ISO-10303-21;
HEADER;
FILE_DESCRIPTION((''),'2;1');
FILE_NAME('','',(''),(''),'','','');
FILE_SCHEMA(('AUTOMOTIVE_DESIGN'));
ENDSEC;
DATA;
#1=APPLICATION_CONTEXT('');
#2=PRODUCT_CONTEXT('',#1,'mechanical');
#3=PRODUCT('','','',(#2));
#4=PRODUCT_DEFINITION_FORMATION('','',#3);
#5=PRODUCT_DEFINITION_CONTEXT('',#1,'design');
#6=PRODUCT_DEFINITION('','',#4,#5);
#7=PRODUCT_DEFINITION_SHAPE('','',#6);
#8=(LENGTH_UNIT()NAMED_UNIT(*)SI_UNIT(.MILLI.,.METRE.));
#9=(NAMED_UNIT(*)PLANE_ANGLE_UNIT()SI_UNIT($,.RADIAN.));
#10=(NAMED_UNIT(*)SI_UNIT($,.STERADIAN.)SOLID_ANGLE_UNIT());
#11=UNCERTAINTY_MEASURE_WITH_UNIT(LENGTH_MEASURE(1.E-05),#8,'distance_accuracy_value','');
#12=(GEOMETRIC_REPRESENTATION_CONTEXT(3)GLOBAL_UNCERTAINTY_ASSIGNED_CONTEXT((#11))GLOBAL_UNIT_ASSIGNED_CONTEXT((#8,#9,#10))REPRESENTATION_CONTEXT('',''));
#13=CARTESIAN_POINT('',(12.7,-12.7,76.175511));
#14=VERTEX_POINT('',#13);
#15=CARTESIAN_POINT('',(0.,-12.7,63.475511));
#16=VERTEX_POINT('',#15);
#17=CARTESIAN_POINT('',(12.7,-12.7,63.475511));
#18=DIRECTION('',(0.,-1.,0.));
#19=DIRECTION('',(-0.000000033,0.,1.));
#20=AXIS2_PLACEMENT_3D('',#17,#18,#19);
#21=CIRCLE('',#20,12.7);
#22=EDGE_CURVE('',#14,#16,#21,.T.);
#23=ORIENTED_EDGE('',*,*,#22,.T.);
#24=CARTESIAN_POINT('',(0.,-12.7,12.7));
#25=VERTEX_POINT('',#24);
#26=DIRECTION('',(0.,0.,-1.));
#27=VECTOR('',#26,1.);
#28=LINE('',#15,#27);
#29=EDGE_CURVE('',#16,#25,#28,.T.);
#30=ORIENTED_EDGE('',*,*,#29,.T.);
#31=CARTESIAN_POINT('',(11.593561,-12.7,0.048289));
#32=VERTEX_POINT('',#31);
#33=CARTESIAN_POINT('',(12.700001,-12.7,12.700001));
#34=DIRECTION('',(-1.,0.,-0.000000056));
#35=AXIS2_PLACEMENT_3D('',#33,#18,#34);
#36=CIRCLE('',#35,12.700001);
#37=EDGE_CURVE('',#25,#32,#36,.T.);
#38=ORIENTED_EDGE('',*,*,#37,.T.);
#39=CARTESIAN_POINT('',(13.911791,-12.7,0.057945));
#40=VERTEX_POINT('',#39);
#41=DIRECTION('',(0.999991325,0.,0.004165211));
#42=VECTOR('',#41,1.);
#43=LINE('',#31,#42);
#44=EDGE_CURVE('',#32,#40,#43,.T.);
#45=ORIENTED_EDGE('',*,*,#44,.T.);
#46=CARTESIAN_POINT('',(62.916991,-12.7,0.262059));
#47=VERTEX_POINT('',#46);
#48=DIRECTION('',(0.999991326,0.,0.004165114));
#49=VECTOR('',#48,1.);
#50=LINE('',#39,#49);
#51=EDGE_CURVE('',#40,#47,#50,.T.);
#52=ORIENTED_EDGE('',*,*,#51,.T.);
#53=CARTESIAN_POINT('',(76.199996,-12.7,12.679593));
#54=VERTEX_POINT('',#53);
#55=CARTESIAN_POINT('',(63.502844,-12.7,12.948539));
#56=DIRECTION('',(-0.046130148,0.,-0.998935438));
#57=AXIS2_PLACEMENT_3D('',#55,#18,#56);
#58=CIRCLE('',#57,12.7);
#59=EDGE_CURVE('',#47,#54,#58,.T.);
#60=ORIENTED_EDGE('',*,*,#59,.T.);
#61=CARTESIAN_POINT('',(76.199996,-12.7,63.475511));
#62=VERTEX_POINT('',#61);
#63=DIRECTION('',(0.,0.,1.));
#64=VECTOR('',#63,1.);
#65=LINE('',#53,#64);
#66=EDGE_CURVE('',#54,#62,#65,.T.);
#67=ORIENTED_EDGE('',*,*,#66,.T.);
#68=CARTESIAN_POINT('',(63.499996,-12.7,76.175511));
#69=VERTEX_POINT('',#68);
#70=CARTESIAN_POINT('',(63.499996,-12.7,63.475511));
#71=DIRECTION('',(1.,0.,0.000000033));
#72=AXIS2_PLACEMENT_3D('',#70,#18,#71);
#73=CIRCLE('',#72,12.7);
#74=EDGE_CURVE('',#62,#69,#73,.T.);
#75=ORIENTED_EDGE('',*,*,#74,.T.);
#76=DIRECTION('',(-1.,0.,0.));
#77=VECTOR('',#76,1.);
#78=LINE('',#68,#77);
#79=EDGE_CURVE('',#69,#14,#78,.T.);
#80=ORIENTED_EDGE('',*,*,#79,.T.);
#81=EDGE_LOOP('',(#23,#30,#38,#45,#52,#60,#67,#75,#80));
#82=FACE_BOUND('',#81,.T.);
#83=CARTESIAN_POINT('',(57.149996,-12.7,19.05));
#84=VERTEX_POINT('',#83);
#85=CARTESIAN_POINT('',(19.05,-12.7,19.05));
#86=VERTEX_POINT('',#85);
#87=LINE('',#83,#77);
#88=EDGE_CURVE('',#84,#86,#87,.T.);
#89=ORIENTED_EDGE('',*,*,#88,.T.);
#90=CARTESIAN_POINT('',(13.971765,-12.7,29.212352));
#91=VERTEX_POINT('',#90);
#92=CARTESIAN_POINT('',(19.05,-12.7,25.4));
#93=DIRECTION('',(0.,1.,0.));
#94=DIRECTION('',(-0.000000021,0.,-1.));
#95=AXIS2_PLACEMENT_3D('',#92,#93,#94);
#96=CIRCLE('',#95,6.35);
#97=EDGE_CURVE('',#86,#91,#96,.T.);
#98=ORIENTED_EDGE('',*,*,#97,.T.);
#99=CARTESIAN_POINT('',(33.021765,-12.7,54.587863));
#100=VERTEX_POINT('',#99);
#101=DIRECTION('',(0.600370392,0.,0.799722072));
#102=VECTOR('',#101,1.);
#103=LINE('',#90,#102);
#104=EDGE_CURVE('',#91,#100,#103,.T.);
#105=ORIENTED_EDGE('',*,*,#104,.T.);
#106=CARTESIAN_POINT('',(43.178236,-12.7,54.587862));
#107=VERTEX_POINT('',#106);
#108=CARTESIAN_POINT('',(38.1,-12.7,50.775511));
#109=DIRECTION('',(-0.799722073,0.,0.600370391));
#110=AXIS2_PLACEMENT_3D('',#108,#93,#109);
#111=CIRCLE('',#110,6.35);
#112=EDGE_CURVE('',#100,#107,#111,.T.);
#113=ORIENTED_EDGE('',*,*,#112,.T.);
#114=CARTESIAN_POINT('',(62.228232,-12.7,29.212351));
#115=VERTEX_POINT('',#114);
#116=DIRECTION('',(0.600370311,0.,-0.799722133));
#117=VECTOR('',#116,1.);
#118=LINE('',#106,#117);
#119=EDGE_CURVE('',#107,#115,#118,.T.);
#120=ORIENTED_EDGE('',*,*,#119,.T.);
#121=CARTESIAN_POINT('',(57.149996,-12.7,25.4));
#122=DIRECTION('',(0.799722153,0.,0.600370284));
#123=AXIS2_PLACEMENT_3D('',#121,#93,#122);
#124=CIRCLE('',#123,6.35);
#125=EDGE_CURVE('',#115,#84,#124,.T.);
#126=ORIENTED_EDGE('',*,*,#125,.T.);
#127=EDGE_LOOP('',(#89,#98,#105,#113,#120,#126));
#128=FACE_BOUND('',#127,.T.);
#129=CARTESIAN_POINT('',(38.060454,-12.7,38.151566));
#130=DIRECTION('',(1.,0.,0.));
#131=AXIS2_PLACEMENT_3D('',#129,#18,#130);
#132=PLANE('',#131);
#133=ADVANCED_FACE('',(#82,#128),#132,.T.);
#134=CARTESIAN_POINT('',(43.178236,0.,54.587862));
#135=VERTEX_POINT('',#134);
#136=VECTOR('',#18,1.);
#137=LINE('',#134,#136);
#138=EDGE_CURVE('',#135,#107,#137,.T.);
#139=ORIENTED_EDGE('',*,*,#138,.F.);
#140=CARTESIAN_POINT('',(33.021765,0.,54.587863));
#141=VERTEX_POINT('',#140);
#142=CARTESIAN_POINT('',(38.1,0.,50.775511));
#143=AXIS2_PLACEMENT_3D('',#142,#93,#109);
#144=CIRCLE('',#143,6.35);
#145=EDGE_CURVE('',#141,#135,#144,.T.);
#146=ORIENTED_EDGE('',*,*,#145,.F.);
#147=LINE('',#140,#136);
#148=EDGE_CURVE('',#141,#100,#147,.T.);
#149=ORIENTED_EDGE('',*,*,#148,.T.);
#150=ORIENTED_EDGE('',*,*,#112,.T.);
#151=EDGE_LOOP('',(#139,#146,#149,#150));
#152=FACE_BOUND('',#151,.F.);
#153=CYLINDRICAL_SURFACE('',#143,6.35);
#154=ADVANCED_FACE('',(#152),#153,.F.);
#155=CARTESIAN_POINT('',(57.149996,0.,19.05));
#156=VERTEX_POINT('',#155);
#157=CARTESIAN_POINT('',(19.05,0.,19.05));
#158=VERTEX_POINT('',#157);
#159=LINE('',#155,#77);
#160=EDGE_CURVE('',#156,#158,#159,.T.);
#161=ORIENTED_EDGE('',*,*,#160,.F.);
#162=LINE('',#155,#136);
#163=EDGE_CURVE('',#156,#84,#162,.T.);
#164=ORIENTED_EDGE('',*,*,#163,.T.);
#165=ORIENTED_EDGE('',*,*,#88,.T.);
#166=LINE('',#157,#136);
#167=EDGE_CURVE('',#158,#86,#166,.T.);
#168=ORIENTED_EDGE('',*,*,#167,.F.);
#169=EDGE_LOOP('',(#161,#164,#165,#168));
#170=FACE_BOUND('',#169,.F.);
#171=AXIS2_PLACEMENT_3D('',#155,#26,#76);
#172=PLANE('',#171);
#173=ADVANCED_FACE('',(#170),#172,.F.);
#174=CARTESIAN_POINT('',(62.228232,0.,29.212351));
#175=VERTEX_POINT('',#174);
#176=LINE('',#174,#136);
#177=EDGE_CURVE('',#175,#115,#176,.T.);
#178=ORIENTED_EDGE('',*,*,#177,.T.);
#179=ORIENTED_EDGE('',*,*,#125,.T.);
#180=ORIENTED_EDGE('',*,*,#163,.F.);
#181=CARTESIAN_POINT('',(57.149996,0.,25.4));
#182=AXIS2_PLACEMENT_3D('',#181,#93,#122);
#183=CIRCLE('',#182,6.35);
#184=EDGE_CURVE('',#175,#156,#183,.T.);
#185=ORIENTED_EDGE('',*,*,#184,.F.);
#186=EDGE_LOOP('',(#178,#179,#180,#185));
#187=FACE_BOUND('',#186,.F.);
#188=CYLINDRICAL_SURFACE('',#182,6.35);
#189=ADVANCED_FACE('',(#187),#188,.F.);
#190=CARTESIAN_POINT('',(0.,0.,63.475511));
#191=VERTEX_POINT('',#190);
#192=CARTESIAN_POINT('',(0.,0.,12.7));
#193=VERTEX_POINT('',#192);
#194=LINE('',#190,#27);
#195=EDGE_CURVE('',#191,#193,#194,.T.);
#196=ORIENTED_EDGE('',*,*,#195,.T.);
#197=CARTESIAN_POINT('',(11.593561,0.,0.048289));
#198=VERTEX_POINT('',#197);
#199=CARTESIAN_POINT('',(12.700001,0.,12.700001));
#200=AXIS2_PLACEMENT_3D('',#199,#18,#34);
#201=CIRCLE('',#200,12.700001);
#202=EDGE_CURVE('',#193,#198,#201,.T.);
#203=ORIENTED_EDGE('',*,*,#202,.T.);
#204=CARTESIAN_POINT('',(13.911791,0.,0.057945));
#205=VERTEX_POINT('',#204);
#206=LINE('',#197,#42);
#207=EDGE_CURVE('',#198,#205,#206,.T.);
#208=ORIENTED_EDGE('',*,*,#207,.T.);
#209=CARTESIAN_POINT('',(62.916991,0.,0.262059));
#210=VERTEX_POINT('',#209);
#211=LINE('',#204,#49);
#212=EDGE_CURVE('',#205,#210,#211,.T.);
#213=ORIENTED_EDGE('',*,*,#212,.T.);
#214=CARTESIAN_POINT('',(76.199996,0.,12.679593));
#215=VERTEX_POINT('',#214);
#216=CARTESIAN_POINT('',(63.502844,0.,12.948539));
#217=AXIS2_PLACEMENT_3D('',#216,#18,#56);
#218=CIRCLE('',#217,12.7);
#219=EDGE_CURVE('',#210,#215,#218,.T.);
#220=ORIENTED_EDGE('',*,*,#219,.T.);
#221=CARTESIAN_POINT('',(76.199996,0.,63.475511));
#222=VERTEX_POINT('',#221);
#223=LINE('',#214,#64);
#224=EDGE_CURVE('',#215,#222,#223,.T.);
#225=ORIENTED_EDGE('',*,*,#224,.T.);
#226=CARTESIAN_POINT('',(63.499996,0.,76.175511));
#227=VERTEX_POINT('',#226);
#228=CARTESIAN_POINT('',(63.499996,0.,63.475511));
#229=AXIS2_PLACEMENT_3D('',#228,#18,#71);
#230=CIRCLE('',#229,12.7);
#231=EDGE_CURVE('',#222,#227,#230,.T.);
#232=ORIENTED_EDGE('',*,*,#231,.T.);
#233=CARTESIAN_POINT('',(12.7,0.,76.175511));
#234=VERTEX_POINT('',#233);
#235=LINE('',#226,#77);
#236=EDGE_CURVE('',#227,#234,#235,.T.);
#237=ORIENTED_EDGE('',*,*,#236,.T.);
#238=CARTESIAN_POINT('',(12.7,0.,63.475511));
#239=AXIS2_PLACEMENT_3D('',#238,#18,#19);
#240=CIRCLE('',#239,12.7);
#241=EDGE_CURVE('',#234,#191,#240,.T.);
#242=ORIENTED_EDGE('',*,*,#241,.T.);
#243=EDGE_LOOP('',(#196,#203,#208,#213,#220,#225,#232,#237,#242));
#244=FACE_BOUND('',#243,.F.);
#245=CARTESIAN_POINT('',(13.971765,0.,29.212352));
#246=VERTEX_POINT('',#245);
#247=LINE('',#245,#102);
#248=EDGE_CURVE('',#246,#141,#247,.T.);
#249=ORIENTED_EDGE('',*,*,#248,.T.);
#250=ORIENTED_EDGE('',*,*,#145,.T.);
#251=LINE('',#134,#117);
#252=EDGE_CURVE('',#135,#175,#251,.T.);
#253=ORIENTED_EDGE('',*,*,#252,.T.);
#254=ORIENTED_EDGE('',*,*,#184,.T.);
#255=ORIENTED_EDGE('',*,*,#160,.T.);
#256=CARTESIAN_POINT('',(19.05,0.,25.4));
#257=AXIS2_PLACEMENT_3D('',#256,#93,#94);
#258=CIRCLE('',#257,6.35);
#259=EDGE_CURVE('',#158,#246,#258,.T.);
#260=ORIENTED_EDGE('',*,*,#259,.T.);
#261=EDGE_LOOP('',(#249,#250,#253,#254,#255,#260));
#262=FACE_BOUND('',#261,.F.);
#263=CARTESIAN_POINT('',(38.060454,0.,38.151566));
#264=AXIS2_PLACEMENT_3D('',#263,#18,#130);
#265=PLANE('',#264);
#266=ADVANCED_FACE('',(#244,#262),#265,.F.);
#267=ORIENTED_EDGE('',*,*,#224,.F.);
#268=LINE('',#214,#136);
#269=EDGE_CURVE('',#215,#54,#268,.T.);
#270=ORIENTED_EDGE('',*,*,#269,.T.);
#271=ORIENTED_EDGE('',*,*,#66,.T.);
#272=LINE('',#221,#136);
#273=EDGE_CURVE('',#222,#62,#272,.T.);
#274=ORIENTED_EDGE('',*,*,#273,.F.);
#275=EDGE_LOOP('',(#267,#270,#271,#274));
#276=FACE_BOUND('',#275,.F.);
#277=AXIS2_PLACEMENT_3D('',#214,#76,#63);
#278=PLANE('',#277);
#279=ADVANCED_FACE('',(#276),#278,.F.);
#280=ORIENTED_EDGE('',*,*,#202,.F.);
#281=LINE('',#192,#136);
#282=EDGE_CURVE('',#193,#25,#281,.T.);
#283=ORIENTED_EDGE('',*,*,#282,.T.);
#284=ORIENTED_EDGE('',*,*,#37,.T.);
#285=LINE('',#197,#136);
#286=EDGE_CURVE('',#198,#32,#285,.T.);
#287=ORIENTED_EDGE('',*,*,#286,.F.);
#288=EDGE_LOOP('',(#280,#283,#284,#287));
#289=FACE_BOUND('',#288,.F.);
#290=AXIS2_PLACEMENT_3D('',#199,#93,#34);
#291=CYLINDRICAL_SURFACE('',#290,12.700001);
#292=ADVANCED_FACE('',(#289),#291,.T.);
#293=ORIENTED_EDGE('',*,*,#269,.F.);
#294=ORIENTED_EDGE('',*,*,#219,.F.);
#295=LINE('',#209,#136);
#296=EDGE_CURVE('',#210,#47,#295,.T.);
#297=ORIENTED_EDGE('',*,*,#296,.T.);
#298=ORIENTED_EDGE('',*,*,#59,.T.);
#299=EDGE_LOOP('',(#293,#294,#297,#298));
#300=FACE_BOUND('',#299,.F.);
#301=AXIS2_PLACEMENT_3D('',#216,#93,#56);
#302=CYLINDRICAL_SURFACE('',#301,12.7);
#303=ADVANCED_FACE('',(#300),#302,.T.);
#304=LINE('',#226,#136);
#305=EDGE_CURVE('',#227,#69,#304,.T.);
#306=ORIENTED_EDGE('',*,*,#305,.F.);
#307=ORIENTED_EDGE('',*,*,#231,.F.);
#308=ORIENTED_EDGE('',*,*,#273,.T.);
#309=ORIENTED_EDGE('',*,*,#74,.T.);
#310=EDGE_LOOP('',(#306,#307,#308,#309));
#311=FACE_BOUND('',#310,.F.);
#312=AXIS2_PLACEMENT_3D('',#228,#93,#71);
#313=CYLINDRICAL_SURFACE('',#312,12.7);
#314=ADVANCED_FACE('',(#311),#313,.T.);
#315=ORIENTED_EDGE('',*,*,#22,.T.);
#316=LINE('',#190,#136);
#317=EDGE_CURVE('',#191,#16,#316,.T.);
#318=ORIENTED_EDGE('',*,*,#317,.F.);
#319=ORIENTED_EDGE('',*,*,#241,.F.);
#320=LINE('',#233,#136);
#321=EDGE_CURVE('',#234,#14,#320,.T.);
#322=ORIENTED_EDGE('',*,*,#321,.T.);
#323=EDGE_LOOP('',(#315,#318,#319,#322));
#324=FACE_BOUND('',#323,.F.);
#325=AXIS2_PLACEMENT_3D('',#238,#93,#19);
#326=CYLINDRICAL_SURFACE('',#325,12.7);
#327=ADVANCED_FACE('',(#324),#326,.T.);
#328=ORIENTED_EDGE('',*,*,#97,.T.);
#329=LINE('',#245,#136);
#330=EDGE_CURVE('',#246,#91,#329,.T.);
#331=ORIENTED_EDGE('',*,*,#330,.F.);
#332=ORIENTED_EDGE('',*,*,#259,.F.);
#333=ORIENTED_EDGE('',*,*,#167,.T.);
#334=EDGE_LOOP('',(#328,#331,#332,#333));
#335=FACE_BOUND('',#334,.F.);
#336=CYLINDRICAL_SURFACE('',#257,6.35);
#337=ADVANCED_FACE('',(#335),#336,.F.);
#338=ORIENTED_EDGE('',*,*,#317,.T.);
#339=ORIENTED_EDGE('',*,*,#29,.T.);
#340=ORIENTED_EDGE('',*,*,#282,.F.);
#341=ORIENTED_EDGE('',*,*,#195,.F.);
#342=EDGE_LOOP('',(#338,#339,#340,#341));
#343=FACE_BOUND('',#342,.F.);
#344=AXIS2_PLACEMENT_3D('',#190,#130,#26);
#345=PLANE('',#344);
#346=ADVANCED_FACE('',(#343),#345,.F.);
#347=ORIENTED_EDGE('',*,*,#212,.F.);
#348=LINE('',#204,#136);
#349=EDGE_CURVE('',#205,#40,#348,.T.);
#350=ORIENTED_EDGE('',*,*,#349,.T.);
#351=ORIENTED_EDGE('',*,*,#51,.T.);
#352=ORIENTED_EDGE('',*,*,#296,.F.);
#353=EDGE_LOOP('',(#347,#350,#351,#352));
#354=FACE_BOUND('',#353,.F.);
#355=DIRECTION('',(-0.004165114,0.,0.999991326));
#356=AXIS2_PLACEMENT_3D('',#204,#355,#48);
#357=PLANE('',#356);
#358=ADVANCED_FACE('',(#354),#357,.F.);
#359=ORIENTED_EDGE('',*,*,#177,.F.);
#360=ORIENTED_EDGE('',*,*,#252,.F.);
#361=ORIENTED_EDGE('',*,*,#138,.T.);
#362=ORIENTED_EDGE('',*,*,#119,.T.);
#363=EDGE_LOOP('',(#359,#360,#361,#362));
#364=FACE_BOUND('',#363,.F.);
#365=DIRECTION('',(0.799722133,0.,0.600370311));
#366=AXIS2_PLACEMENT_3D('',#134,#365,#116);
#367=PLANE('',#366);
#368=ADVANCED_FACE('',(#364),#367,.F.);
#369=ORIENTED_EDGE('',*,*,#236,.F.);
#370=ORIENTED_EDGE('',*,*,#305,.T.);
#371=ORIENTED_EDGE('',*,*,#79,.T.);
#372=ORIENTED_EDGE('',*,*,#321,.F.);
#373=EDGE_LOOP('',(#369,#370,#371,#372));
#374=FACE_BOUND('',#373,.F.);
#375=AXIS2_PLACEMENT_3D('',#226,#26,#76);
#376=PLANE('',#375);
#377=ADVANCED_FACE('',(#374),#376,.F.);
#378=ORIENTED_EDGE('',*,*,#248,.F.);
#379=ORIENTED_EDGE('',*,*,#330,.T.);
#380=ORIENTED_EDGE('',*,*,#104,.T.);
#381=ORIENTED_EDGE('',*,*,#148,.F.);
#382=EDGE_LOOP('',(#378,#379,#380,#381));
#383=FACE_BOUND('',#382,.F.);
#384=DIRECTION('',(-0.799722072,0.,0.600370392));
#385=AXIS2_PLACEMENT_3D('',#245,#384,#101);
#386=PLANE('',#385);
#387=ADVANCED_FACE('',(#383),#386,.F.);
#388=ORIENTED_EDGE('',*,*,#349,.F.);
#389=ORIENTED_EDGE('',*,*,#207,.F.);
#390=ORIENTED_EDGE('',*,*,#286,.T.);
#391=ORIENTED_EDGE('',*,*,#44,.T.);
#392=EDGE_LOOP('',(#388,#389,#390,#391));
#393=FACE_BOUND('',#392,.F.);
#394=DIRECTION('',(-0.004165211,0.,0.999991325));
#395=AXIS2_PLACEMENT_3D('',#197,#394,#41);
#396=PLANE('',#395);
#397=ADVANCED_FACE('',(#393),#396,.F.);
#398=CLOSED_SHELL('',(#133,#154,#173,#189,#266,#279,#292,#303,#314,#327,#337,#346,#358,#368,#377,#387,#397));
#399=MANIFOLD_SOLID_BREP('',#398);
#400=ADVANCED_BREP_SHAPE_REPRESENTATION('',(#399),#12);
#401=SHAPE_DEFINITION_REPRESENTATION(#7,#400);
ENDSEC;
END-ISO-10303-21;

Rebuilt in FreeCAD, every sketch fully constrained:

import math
import FreeCAD as App
import Part
import Sketcher
Q = App.Units.Quantity

doc = App.newDocument("Part")
params = doc.addObject("Spreadsheet::Sheet", "Params")
for row, (alias, value) in enumerate([
    ("sketch1_radius", "0.5 in"),
    ("sketch1_width", "1.9999998 in"),
    ("sketch1_radius2", "0.25 in"),
    ("sketch1_width2", "1.4999998 in"),
    ("pad1_length", "0.5 in"),
], start=1):
    params.set(f"A{row}", alias)
    params.set(f"B{row}", "=" + value)
    params.setAlias(f"B{row}", alias)

body = doc.addObject("PartDesign::Body", "Body")

# Sketch on XZ plane
sketch1 = doc.addObject("Sketcher::SketchObject", "Sketch")
body.addObject(sketch1)
sketch1.AttachmentSupport = (doc.XZ_Plane, [""])
sketch1.MapMode = "FlatFace"
sketch1.addGeometry([
    Part.ArcOfCircle(Part.Circle(App.Vector(63.5, 12.9, 0), App.Vector(0, 0, 1), 12.7), math.radians(-93), math.radians(-1)),  # 0
    Part.LineSegment(App.Vector(76.2, 12.7, 0), App.Vector(76.2, 63.5, 0)),  # 1
    Part.ArcOfCircle(Part.Circle(App.Vector(63.5, 63.5, 0), App.Vector(0, 0, 1), 12.7), math.radians(0), math.radians(90)),  # 2
    Part.LineSegment(App.Vector(63.5, 76.2, 0), App.Vector(12.7, 76.2, 0)),  # 3
    Part.ArcOfCircle(Part.Circle(App.Vector(12.7, 63.5, 0), App.Vector(0, 0, 1), 12.7), math.radians(90), math.radians(180)),  # 4
    Part.LineSegment(App.Vector(0, 63.5, 0), App.Vector(0, 12.7, 0)),  # 5
    Part.ArcOfCircle(Part.Circle(App.Vector(12.7, 12.7, 0), App.Vector(0, 0, 1), 12.7), math.radians(-180), math.radians(-95)),  # 6
    Part.LineSegment(App.Vector(11.6, 0, 0), App.Vector(13.9, 0.1, 0)),  # 7
    Part.LineSegment(App.Vector(13.9, 0.1, 0), App.Vector(62.9, 0.3, 0)),  # 8
    Part.LineSegment(App.Vector(57.1, 19.1, 0), App.Vector(19.1, 19.1, 0)),  # 9
    Part.ArcOfCircle(Part.Circle(App.Vector(19.1, 25.4, 0), App.Vector(0, 0, 1), 6.3), math.radians(143), math.radians(270)),  # 10
    Part.LineSegment(App.Vector(14, 29.2, 0), App.Vector(33, 54.6, 0)),  # 11
    Part.ArcOfCircle(Part.Circle(App.Vector(38.1, 50.8, 0), App.Vector(0, 0, 1), 6.3), math.radians(37), math.radians(143)),  # 12
    Part.LineSegment(App.Vector(43.2, 54.6, 0), App.Vector(62.2, 29.2, 0)),  # 13
    Part.ArcOfCircle(Part.Circle(App.Vector(57.1, 25.4, 0), App.Vector(0, 0, 1), 6.3), math.radians(-90), math.radians(37)),  # 14
], False)
sketch1.addConstraint([
    Sketcher.Constraint("Coincident", 0, 2, 1, 1),
    Sketcher.Constraint("Tangent", 1, 2, 2, 1),
    Sketcher.Constraint("Tangent", 2, 2, 3, 1),
    Sketcher.Constraint("Tangent", 3, 2, 4, 1),
    Sketcher.Constraint("Tangent", 4, 2, 5, 1),
    Sketcher.Constraint("Tangent", 5, 2, 6, 1),
    Sketcher.Constraint("Coincident", 6, 2, 7, 1),
    Sketcher.Constraint("Coincident", 7, 2, 8, 1),
    Sketcher.Constraint("Coincident", 8, 2, 0, 1),
    Sketcher.Constraint("Tangent", 9, 2, 10, 2),
    Sketcher.Constraint("Tangent", 10, 1, 11, 1),
    Sketcher.Constraint("Tangent", 11, 2, 12, 2),
    Sketcher.Constraint("Tangent", 12, 1, 13, 1),
    Sketcher.Constraint("Tangent", 13, 2, 14, 2),
    Sketcher.Constraint("Tangent", 14, 1, 9, 1),
    Sketcher.Constraint("Vertical", 1),
    Sketcher.Constraint("Horizontal", 3),
    Sketcher.Constraint("Vertical", 5),
    Sketcher.Constraint("Horizontal", 9),
    Sketcher.Constraint("Equal", 0, 2),
    Sketcher.Constraint("Equal", 2, 4),
    Sketcher.Constraint("Equal", 4, 6),
    Sketcher.Constraint("Equal", 10, 12),
    Sketcher.Constraint("Equal", 12, 14),
    Sketcher.Constraint("PointOnObject", 4, 2, -2),
    Sketcher.Constraint("Parallel", 7, 8),
    Sketcher.Constraint("Horizontal", 11, 2, 12, 1),
    Sketcher.Constraint("Radius", 0, Q("0.5 in")),
    Sketcher.Constraint("DistanceX", 3, 2, 3, 1, Q("1.9999998 in")),
    Sketcher.Constraint("Radius", 10, Q("0.25 in")),
    Sketcher.Constraint("DistanceX", 9, 2, 9, 1, Q("1.4999998 in")),
    Sketcher.Constraint("DistanceY", -1, 1, 10, 3, Q("1 in")),
    Sketcher.Constraint("DistanceX", 12, 3, 2, 3, Q("0.9999998 in")),
    Sketcher.Constraint("DistanceY", 12, 3, 2, 2, Q("1 in")),
    Sketcher.Constraint("DistanceY", -1, 1, 6, 3, Q("0.5 in")),
    Sketcher.Constraint("DistanceY", 5, 2, 5, 1, Q("50.775511 mm")),
    Sketcher.Constraint("DistanceX", 7, 2, 8, 2, Q("49.0052 mm")),
    Sketcher.Constraint("Distance", 7, Q("2.31825 mm")),
    Sketcher.Constraint("DistanceY", 1, 1, 1, 2, Q("50.795918 mm")),
    Sketcher.Constraint("DistanceY", -1, 1, 0, 3, Q("12.948539 mm")),
    Sketcher.Constraint("DistanceX", -1, 1, 6, 2, Q("11.593561 mm")),
])
sketch1.setExpression("Constraints[27]", "Params.sketch1_radius")
sketch1.setExpression("Constraints[28]", "Params.sketch1_width")
sketch1.setExpression("Constraints[29]", "Params.sketch1_radius2")
sketch1.setExpression("Constraints[30]", "Params.sketch1_width2")
pad1 = doc.addObject("PartDesign::Pad", "Pad")
body.addObject(pad1)
pad1.Profile = sketch1
pad1.setExpression("Length", "Params.pad1_length")

doc.recompute()
